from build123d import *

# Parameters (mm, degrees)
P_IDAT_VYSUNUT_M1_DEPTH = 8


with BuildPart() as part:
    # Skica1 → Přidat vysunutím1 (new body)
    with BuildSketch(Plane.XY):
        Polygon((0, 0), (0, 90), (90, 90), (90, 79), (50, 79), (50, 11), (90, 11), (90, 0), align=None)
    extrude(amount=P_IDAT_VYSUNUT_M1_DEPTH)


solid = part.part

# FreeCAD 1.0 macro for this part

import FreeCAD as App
import Part
import Sketcher
Q = App.Units.Quantity


def add_polygon(sketch, points):
    """Adds a closed chain of lines whose ends are joined by coincident constraints."""
    first, n = sketch.GeometryCount, len(points)
    for a, b in zip(points, points[1:] + points[:1]):
        sketch.addGeometry(Part.LineSegment(App.Vector(*a, 0), App.Vector(*b, 0)), False)
    for i in range(n):
        sketch.addConstraint(Sketcher.Constraint("Coincident", first + i, 2, first + (i + 1) % n, 1))

doc = App.newDocument("Part")
body = doc.addObject("PartDesign::Body", "Body")

# Sketch on XY plane
sketch1 = body.newObject("Sketcher::SketchObject", "Sketch")
sketch1.AttachmentSupport = (doc.getObject("XY_Plane"), [""])
sketch1.MapMode = "FlatFace"
add_polygon(sketch1, [(0, 90), (0, 0), (90, 0), (90, 11), (50, 11), (50, 79), (90, 79), (90, 90)])  # lines 0-7
sketch1.addConstraint([
    Sketcher.Constraint("Vertical", 0),
    Sketcher.Constraint("Horizontal", 1),
    Sketcher.Constraint("Vertical", 2),
    Sketcher.Constraint("Horizontal", 3),
    Sketcher.Constraint("Vertical", 4),
    Sketcher.Constraint("Horizontal", 5),
    Sketcher.Constraint("Vertical", 6),
    Sketcher.Constraint("Horizontal", 7),
    Sketcher.Constraint("Coincident", 0, 2, -1, 1),
    Sketcher.Constraint("Vertical", 2, 2, 5, 2),
    Sketcher.Constraint("Equal", 7, 0),
    Sketcher.Constraint("Equal", 2, 6),
    Sketcher.Constraint("DistanceX", 1, 1, 1, 2, Q("90 mm")),
    Sketcher.Constraint("DistanceX", 3, 2, 3, 1, Q("40 mm")),
    Sketcher.Constraint("DistanceY", 2, 1, 2, 2, Q("11 mm")),
])
pad1 = body.newObject("PartDesign::Pad", "Pad")
pad1.Profile = sketch1
pad1.Length = 8

doc.recompute()
